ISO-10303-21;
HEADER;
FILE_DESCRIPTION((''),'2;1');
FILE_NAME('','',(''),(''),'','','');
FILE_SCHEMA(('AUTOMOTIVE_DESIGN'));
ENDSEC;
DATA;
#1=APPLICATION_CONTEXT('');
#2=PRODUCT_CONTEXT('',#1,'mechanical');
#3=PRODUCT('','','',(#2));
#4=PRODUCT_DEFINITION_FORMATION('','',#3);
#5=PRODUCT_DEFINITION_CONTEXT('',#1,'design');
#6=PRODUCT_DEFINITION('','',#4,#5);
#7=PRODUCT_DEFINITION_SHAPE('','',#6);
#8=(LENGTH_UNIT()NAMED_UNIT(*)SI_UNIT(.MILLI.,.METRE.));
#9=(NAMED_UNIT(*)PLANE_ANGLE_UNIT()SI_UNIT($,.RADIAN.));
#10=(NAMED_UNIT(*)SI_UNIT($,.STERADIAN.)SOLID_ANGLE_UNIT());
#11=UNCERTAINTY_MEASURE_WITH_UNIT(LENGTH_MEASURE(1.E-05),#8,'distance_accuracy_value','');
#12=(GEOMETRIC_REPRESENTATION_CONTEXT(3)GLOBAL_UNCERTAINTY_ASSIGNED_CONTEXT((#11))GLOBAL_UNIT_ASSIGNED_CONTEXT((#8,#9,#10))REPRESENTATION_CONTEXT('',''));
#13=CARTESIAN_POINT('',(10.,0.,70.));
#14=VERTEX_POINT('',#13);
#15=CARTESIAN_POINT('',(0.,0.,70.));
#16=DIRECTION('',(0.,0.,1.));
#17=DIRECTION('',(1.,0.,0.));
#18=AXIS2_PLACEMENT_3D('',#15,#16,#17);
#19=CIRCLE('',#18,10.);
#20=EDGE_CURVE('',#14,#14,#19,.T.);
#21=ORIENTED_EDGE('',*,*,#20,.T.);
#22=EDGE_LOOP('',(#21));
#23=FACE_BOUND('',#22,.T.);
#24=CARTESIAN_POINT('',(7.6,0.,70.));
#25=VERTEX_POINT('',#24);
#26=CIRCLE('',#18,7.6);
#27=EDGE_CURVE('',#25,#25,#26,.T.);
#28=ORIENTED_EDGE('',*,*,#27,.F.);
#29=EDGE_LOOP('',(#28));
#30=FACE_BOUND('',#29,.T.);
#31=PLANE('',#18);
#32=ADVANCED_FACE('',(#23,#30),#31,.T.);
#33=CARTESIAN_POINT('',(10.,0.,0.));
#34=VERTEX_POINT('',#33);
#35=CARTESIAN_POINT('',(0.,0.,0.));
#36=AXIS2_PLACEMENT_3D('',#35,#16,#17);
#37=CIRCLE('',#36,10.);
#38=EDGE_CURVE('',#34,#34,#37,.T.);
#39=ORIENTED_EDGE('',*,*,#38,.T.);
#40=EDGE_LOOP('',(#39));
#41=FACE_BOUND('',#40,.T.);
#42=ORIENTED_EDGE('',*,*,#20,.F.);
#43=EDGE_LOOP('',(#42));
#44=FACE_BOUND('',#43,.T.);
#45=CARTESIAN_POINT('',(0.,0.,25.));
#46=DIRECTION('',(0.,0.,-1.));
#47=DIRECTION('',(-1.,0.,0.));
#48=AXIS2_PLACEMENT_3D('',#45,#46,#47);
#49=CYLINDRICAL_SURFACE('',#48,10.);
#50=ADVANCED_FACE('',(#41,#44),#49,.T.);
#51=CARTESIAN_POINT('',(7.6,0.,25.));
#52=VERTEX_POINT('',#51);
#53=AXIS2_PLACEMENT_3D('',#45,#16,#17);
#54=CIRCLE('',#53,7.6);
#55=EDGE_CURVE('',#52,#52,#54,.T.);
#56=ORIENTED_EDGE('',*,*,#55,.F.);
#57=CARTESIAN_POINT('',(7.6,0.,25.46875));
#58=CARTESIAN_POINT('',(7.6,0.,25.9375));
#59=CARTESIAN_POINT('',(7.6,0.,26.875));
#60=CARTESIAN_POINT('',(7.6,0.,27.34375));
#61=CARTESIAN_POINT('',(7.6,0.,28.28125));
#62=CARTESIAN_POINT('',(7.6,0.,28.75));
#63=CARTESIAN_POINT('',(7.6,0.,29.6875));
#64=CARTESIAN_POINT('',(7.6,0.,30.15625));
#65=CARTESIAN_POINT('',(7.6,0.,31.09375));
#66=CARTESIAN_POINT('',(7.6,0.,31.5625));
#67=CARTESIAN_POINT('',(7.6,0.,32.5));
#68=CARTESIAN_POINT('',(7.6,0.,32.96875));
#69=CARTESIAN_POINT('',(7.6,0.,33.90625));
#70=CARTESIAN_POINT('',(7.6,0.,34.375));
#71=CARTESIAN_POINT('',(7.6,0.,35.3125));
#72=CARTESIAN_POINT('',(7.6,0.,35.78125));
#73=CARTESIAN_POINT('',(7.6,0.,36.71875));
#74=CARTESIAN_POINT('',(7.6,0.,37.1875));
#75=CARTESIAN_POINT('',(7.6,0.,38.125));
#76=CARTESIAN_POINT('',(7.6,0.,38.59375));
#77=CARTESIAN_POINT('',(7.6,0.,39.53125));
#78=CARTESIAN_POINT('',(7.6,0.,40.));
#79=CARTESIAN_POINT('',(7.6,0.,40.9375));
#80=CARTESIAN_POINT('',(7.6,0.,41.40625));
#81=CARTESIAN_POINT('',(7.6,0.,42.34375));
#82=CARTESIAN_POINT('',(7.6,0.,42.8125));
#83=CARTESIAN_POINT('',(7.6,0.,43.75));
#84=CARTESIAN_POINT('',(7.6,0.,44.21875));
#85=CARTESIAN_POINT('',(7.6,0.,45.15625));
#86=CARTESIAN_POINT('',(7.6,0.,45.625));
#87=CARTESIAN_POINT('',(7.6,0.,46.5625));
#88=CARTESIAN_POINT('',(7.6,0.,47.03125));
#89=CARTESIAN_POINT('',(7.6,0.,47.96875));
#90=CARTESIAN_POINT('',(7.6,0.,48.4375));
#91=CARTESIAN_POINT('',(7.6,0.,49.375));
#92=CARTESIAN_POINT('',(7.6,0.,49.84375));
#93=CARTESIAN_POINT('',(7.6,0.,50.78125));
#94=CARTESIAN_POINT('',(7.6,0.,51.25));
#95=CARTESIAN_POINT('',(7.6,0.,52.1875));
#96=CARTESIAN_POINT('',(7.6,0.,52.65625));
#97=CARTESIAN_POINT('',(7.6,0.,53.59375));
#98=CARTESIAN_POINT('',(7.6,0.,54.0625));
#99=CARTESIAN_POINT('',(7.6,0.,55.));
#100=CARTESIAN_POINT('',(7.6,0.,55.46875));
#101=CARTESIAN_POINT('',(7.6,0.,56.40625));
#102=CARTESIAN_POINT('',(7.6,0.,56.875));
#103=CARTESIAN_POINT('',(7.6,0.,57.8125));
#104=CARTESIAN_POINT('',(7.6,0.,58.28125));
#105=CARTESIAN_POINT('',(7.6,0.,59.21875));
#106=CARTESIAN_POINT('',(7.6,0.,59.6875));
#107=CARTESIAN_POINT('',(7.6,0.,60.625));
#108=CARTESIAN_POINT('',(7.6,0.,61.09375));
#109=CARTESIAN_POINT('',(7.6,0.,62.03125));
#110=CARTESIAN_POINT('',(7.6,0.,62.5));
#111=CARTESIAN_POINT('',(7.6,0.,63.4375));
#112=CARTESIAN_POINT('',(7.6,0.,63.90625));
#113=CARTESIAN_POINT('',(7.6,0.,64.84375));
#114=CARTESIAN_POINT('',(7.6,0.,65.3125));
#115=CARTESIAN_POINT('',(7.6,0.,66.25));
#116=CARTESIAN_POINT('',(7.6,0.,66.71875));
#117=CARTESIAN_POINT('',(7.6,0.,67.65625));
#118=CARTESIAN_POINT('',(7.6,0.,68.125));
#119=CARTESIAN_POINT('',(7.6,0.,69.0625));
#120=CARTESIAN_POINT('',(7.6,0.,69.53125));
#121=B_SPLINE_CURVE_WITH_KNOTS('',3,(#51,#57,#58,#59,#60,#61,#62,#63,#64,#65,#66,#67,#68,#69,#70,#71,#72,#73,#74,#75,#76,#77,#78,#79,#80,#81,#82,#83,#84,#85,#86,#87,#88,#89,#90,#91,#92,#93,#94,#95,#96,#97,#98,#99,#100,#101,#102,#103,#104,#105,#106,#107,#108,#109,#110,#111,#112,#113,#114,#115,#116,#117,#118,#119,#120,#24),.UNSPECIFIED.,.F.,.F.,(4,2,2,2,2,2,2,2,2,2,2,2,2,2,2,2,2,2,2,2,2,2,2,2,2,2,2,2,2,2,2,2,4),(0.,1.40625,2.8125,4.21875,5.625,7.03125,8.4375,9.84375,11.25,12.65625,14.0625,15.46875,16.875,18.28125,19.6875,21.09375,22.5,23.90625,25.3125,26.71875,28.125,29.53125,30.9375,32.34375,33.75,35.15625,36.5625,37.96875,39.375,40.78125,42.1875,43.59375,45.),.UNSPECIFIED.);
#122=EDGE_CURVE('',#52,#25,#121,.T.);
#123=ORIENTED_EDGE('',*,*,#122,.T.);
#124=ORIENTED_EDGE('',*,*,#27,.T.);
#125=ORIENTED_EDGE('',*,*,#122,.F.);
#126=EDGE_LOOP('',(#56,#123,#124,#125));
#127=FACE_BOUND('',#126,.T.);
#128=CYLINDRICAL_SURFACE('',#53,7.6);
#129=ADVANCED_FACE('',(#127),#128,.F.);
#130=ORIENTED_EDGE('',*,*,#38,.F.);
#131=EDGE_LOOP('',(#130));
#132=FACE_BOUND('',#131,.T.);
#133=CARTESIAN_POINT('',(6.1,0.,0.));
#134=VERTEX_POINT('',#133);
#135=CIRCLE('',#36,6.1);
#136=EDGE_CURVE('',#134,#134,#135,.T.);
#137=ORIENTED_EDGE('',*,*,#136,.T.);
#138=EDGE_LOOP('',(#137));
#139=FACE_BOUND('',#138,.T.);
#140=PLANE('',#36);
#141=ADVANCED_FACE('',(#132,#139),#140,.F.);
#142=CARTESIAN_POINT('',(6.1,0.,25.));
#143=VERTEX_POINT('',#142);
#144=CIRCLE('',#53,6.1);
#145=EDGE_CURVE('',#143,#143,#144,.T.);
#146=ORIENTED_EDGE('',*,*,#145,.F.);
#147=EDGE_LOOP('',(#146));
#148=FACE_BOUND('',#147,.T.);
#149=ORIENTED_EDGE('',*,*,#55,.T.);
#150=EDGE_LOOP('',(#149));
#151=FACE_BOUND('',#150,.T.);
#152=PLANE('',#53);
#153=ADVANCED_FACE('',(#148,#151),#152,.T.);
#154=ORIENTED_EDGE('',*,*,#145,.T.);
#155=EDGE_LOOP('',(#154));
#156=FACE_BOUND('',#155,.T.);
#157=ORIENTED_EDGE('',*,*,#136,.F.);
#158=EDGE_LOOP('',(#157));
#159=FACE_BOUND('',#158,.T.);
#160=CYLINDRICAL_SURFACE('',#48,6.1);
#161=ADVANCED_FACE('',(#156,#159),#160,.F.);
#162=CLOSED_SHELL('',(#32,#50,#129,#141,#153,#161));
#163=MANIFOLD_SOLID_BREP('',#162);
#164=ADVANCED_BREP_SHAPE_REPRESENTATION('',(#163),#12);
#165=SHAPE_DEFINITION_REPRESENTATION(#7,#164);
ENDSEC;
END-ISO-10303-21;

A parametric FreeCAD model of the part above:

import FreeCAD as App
import Part
import Sketcher

V = App.Vector

doc = App.newDocument("Part")
body = doc.addObject("PartDesign::Body", "Body")

# Sketch on XY plane
sketch1 = body.newObject("Sketcher::SketchObject", "Sketch")
sketch1.AttachmentSupport = (doc.getObject("XY_Plane"), [""])
sketch1.MapMode = "FlatFace"
sketch1.addGeometry(Part.Circle(V(0, 0, 0), V(0, 0, 1), 10), False)
sketch1.addGeometry(Part.Circle(V(0, 0, 0), V(0, 0, 1), 6), False)
sketch1.addConstraint(Sketcher.Constraint("Coincident", 0, 3, -1, 1))
sketch1.addConstraint(Sketcher.Constraint("Coincident", 1, 3, -1, 1))
sketch1.addConstraint(Sketcher.Constraint("Diameter", 0, 20.0))
sketch1.addConstraint(Sketcher.Constraint("Diameter", 1, 12.2))
pad1 = body.newObject("PartDesign::Pad", "Pad")
pad1.Profile = sketch1
pad1.Length = 25

# Sketch on XY plane
sketch2 = body.newObject("Sketcher::SketchObject", "Sketch001")
sketch2.AttachmentSupport = (doc.getObject("XY_Plane"), [""])
sketch2.MapMode = "FlatFace"
sketch2.AttachmentOffset = App.Placement(V(0, 0, 25), App.Rotation())
sketch2.addGeometry(Part.Circle(V(0, 0, 0), V(0, 0, 1), 10), False)
sketch2.addConstraint(Sketcher.Constraint("Coincident", 0, 3, -1, 1))
sketch2.addConstraint(Sketcher.Constraint("Diameter", 0, 20.0))
pad2 = body.newObject("PartDesign::Pad", "Pad001")
pad2.Profile = sketch2
pad2.Length = 45

# Sketch on XY plane
sketch3 = body.newObject("Sketcher::SketchObject", "Sketch002")
sketch3.AttachmentSupport = (doc.getObject("XY_Plane"), [""])
sketch3.MapMode = "FlatFace"
sketch3.AttachmentOffset = App.Placement(V(0, 0, 70), App.Rotation())
sketch3.addGeometry(Part.Circle(V(0, 0, 0), V(0, 0, 1), 8), False)
sketch3.addConstraint(Sketcher.Constraint("Coincident", 0, 3, -1, 1))
sketch3.addConstraint(Sketcher.Constraint("Diameter", 0, 15.2))
pocket1 = body.newObject("PartDesign::Pocket", "Pocket")
pocket1.Profile = sketch3
pocket1.Length = 45

doc.recompute()
